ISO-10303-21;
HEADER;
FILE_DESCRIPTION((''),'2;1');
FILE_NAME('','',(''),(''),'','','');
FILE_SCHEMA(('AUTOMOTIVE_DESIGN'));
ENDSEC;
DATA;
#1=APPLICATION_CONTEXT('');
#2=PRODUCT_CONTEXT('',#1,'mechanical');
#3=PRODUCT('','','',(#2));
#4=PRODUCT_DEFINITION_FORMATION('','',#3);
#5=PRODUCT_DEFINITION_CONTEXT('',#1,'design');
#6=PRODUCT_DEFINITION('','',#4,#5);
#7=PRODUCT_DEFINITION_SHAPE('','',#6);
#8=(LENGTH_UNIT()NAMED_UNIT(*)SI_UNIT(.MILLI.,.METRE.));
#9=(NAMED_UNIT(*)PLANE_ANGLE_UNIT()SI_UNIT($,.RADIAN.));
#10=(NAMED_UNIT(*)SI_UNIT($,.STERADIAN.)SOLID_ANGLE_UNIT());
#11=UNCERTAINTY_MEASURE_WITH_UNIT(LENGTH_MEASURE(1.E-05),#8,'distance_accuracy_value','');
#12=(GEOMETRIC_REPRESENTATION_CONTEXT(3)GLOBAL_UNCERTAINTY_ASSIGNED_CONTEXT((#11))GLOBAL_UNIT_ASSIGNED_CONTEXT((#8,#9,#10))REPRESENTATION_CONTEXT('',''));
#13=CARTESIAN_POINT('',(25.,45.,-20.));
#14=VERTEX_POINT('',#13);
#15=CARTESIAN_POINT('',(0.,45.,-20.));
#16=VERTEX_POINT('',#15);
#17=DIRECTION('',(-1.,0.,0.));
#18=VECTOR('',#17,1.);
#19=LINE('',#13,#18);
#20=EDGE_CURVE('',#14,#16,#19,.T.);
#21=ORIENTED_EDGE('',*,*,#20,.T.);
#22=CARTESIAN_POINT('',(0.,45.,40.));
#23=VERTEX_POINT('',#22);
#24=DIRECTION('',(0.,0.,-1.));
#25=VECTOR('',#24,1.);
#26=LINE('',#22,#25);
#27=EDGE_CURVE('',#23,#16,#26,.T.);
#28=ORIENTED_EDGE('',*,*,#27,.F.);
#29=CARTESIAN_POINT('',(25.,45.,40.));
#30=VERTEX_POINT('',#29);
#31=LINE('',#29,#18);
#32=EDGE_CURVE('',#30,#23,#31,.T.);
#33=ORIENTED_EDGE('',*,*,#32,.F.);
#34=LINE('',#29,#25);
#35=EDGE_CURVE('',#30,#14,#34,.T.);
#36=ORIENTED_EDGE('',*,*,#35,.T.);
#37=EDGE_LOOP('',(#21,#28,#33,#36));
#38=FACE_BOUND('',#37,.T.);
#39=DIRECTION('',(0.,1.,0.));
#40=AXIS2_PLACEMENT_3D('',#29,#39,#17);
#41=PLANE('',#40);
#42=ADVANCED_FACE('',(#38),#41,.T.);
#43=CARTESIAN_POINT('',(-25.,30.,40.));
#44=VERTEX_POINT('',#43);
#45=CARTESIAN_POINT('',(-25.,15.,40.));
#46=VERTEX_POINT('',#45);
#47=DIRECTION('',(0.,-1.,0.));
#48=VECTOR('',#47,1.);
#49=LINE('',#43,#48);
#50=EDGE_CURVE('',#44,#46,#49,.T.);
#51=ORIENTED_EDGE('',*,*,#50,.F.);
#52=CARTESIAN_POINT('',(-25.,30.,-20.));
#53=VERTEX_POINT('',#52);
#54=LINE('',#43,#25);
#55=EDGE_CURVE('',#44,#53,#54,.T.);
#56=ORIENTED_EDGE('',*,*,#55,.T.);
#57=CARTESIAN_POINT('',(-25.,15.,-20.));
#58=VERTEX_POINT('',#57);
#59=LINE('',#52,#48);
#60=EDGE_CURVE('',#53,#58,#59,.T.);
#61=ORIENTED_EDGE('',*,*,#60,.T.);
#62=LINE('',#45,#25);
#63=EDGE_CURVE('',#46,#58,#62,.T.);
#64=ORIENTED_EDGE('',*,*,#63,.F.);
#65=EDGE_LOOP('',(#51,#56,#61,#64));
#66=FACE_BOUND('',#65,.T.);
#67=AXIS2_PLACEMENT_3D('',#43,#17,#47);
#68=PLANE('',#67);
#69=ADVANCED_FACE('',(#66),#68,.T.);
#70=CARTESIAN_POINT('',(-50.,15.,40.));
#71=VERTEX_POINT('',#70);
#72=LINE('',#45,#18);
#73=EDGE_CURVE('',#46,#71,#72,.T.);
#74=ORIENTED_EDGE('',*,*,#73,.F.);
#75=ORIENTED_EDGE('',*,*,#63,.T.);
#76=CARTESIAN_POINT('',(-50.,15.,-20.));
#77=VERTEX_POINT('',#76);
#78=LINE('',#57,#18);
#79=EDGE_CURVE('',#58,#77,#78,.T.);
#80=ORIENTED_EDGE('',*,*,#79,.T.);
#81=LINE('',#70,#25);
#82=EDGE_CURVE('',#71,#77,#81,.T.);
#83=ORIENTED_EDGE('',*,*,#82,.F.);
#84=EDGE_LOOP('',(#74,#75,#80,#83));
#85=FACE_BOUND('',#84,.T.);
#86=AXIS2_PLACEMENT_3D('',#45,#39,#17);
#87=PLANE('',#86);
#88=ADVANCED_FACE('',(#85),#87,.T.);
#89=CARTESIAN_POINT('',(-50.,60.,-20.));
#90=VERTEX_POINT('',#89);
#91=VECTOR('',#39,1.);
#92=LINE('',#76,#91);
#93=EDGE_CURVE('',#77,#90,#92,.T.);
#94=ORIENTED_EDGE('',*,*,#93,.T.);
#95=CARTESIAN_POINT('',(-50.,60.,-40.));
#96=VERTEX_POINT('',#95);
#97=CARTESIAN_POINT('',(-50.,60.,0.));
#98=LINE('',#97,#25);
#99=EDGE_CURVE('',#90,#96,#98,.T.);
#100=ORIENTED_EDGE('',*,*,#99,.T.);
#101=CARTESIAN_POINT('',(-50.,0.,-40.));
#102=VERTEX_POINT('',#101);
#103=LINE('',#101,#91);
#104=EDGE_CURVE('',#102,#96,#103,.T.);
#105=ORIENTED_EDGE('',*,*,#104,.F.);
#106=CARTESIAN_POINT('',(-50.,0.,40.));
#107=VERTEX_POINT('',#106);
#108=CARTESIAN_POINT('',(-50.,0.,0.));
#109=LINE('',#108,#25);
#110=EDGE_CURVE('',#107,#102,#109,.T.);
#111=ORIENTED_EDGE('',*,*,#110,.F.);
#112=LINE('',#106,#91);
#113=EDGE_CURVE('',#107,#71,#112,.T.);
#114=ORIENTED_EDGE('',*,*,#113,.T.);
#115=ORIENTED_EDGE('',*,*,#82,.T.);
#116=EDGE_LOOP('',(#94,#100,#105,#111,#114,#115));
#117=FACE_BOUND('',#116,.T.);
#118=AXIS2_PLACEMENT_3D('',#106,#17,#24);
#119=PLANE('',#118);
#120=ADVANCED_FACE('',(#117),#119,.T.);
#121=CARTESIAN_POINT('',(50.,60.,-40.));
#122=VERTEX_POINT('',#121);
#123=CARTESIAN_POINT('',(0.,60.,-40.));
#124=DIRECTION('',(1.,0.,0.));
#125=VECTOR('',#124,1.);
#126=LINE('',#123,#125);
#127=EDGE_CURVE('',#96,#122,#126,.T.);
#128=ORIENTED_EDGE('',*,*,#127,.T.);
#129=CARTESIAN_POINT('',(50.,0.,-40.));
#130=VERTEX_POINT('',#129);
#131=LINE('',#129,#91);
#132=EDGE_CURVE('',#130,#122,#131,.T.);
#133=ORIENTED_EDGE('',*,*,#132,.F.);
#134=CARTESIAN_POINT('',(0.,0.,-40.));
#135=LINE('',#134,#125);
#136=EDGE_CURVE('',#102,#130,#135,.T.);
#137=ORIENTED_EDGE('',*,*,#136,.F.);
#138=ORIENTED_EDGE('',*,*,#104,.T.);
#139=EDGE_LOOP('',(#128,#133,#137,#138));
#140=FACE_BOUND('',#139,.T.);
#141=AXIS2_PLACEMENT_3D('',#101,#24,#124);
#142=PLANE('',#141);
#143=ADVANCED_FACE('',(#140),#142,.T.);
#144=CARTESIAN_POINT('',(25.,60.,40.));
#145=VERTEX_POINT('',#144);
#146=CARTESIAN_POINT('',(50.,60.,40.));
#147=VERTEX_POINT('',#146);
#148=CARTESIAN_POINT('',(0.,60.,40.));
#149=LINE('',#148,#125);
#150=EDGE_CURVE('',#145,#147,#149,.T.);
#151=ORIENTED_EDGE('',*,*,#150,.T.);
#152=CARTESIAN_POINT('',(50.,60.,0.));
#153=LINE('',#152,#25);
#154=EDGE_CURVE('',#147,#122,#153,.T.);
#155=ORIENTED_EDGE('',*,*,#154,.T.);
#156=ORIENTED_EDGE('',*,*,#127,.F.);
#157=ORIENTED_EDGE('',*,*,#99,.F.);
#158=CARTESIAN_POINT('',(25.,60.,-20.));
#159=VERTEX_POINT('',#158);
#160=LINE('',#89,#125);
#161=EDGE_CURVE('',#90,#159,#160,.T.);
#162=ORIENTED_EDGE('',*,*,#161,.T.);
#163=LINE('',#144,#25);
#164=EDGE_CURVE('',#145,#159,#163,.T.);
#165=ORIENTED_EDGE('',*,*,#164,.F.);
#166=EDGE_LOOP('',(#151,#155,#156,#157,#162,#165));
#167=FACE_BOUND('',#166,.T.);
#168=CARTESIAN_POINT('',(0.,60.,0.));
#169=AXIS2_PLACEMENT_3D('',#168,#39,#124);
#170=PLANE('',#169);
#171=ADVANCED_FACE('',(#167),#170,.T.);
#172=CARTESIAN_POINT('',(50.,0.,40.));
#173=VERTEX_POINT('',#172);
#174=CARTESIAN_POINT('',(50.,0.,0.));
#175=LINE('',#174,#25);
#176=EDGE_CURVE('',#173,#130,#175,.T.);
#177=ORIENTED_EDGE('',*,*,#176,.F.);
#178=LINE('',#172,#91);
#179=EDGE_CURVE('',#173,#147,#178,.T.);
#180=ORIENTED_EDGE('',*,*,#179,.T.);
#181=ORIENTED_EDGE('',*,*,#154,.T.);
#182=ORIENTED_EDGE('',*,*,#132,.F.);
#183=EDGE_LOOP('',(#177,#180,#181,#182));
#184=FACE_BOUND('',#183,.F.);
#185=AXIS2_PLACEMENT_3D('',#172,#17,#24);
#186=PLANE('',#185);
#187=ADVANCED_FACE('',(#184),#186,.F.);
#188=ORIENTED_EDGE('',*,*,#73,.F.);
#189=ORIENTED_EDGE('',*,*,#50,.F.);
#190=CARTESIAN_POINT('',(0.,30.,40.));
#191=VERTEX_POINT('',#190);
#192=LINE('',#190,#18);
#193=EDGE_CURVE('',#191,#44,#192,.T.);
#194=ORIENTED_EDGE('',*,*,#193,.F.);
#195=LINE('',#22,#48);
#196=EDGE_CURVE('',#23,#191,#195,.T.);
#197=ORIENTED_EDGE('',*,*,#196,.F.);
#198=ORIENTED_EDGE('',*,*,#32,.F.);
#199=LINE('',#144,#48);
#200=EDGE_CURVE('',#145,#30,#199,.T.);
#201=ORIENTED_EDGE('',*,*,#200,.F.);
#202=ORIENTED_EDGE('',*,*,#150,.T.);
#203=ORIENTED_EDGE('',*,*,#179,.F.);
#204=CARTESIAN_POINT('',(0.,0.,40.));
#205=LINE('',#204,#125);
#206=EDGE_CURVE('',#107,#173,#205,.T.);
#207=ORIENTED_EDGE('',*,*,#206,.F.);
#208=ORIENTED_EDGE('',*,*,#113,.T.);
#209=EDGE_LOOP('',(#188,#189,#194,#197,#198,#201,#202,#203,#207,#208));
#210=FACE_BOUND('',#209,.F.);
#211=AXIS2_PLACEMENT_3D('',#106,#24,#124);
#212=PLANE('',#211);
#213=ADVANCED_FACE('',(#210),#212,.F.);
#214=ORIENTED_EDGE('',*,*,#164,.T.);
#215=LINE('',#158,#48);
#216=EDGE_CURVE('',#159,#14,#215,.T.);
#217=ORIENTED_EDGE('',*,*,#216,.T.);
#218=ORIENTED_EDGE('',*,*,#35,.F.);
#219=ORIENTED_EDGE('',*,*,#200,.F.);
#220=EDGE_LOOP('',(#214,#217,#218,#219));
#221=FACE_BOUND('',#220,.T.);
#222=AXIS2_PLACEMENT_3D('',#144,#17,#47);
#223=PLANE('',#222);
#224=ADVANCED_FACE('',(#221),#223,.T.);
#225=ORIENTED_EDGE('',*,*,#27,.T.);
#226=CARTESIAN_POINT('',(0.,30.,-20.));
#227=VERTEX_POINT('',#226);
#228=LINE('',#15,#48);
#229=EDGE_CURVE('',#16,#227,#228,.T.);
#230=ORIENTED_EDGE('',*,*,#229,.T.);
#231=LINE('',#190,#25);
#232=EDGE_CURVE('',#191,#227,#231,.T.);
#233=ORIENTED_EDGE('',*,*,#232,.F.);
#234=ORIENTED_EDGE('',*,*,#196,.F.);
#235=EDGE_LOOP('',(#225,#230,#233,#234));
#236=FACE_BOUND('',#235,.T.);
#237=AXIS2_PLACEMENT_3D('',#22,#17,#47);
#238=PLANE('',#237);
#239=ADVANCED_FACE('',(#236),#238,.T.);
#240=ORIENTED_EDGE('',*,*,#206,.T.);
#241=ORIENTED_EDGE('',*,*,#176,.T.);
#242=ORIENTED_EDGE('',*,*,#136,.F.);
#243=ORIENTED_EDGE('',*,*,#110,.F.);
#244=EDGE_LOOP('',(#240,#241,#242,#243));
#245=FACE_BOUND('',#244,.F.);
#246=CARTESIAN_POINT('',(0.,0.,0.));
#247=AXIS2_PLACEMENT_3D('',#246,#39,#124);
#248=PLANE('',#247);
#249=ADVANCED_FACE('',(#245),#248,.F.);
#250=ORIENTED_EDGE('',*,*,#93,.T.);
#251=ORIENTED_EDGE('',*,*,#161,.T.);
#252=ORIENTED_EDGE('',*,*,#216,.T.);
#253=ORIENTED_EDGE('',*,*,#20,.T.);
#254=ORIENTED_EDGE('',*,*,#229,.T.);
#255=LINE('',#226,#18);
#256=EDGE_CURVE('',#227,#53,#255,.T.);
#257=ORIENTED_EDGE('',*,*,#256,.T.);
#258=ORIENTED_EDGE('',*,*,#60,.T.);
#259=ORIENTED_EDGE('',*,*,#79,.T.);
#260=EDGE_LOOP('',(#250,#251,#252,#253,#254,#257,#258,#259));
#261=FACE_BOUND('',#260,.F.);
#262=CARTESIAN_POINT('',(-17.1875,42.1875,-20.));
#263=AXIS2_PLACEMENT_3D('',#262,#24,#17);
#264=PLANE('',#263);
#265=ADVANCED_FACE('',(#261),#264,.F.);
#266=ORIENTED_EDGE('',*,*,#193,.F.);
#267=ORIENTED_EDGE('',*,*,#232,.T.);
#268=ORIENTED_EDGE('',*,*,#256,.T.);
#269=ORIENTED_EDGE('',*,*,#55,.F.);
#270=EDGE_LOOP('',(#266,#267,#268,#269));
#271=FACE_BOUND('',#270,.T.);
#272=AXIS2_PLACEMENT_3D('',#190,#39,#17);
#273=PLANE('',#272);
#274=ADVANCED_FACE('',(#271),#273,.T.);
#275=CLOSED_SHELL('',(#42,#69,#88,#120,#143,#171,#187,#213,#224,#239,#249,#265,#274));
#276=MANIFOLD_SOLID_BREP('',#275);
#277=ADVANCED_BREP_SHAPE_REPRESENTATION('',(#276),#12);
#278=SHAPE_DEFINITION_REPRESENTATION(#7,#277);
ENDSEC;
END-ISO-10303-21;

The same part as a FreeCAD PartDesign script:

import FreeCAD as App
import Part
import Sketcher
Q = App.Units.Quantity

doc = App.newDocument("Part")
body = doc.addObject("PartDesign::Body", "Body")

# Sketch on XZ plane
sketch1 = doc.addObject("Sketcher::SketchObject", "Sketch")
body.addObject(sketch1)
sketch1.AttachmentSupport = (doc.XZ_Plane, [""])
sketch1.MapMode = "FlatFace"
sketch1.addGeometry([
    Part.LineSegment(App.Vector(-50, -40, 0), App.Vector(-50, 40, 0)),
    Part.LineSegment(App.Vector(-50, 40, 0), App.Vector(50, 40, 0)),
    Part.LineSegment(App.Vector(50, 40, 0), App.Vector(50, -40, 0)),
    Part.LineSegment(App.Vector(50, -40, 0), App.Vector(-50, -40, 0)),
], False)
sketch1.addConstraint([
    Sketcher.Constraint("Coincident", 0, 2, 1, 1),
    Sketcher.Constraint("Coincident", 1, 2, 2, 1),
    Sketcher.Constraint("Coincident", 2, 2, 3, 1),
    Sketcher.Constraint("Coincident", 3, 2, 0, 1),
    Sketcher.Constraint("Vertical", 0),
    Sketcher.Constraint("Horizontal", 1),
    Sketcher.Constraint("Vertical", 2),
    Sketcher.Constraint("Horizontal", 3),
    Sketcher.Constraint("Symmetric", 0, 2, 2, 2, -1, 1),
    Sketcher.Constraint("DistanceX", 1, 1, 1, 2, Q("100 mm")),
    Sketcher.Constraint("DistanceY", 0, 1, 0, 2, Q("80 mm")),
])
pad1 = doc.addObject("PartDesign::Pad", "Pad")
body.addObject(pad1)
pad1.Profile = sketch1
pad1.Length = 60
pad1.Reversed = True

# Sketch on XY plane
sketch2 = doc.addObject("Sketcher::SketchObject", "Sketch001")
body.addObject(sketch2)
sketch2.AttachmentSupport = (doc.XY_Plane, [""])
sketch2.MapMode = "FlatFace"
sketch2.AttachmentOffset = App.Placement(App.Vector(0, 0, 40), App.Rotation())
sketch2.addGeometry([
    Part.LineSegment(App.Vector(25, 60, 0), App.Vector(-50, 60, 0)),  # 0
    Part.LineSegment(App.Vector(-50, 60, 0), App.Vector(-50, 15, 0)),  # 1
    Part.LineSegment(App.Vector(-50, 15, 0), App.Vector(-25, 15, 0)),  # 2
    Part.LineSegment(App.Vector(-25, 15, 0), App.Vector(-25, 30, 0)),  # 3
    Part.LineSegment(App.Vector(-25, 30, 0), App.Vector(0, 30, 0)),  # 4
    Part.LineSegment(App.Vector(0, 30, 0), App.Vector(0, 45, 0)),  # 5
    Part.LineSegment(App.Vector(0, 45, 0), App.Vector(25, 45, 0)),  # 6
    Part.LineSegment(App.Vector(25, 45, 0), App.Vector(25, 60, 0)),  # 7
], False)
sketch2.addConstraint([
    Sketcher.Constraint("Coincident", 0, 2, 1, 1),
    Sketcher.Constraint("Coincident", 1, 2, 2, 1),
    Sketcher.Constraint("Coincident", 2, 2, 3, 1),
    Sketcher.Constraint("Coincident", 3, 2, 4, 1),
    Sketcher.Constraint("Coincident", 4, 2, 5, 1),
    Sketcher.Constraint("Coincident", 5, 2, 6, 1),
    Sketcher.Constraint("Coincident", 6, 2, 7, 1),
    Sketcher.Constraint("Coincident", 7, 2, 0, 1),
    Sketcher.Constraint("Horizontal", 0),
    Sketcher.Constraint("Vertical", 1),
    Sketcher.Constraint("Horizontal", 2),
    Sketcher.Constraint("Vertical", 3),
    Sketcher.Constraint("Horizontal", 4),
    Sketcher.Constraint("Vertical", 5),
    Sketcher.Constraint("Horizontal", 6),
    Sketcher.Constraint("Vertical", 7),
    Sketcher.Constraint("PointOnObject", 4, 2, -2),
    Sketcher.Constraint("Equal", 2, 4),
    Sketcher.Constraint("Equal", 4, 6),
    Sketcher.Constraint("Equal", 3, 5),
    Sketcher.Constraint("Equal", 5, 7),
    Sketcher.Constraint("DistanceX", 0, 2, 0, 1, Q("75 mm")),
    Sketcher.Constraint("DistanceY", 1, 2, 1, 1, Q("45 mm")),
    Sketcher.Constraint("DistanceY", -1, 1, 0, 2, Q("60 mm")),
])
pocket1 = doc.addObject("PartDesign::Pocket", "Pocket")
body.addObject(pocket1)
pocket1.Profile = sketch2
pocket1.Length = 60

doc.recompute()
